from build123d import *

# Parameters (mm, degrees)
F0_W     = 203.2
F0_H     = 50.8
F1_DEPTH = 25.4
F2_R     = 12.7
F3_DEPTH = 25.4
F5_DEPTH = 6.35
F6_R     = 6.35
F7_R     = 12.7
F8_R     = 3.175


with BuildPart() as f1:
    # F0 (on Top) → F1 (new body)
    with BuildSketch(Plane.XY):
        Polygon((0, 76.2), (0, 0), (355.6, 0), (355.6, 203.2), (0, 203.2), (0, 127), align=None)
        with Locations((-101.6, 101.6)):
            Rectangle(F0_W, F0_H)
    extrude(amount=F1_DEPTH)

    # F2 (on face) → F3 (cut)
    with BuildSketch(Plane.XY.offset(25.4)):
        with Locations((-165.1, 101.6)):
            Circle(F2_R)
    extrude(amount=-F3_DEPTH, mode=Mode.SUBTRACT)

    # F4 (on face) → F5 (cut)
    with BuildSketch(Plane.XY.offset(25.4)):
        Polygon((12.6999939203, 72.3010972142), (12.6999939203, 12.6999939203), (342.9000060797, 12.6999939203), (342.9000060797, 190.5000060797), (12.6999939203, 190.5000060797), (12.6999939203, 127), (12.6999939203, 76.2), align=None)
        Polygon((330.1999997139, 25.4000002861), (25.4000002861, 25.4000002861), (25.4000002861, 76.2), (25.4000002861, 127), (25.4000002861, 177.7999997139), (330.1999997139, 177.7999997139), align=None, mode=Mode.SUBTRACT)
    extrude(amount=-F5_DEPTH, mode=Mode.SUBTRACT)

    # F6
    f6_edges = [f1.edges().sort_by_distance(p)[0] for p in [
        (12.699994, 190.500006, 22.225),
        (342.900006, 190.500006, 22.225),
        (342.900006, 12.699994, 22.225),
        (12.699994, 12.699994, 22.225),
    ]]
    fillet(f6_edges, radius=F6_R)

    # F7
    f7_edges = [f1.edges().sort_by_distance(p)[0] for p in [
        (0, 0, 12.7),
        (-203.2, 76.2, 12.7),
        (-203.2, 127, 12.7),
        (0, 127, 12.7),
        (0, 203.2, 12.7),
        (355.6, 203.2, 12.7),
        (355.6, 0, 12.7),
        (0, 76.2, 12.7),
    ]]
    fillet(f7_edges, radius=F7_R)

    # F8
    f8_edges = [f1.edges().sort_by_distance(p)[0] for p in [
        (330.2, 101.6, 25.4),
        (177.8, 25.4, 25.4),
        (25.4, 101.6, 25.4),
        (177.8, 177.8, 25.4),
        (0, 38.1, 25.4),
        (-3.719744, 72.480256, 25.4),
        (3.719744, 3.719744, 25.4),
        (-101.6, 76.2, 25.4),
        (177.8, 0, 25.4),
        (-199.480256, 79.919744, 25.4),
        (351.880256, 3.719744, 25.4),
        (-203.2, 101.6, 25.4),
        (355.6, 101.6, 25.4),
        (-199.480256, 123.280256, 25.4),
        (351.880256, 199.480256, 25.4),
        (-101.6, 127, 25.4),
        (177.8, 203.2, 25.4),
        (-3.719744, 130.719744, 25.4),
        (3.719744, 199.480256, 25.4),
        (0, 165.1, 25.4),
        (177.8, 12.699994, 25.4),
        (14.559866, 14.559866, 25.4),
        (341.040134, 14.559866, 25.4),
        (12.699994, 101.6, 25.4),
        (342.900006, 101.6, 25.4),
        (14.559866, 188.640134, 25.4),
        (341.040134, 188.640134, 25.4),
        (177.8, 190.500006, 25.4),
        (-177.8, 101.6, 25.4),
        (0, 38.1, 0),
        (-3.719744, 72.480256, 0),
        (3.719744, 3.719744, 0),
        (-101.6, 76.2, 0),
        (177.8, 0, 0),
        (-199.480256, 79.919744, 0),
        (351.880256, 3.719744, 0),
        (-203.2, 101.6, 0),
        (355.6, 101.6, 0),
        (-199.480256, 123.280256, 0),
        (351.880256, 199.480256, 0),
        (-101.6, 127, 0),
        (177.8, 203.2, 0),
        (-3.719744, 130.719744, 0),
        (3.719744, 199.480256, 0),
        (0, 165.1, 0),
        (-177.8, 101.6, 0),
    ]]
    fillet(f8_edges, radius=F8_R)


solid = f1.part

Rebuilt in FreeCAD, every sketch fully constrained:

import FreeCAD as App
import Part
import Sketcher

V = App.Vector
Q = App.Units.Quantity


def edges_at(feature, points):
    """Names of the edges that pass closest to the given points."""
    edges = feature.Shape.Edges
    near = lambda p: min(range(len(edges)), key=lambda i: edges[i].distToShape(Part.Vertex(*p))[0])
    return sorted({f"Edge{near(p) + 1}" for p in points})

doc = App.newDocument("Part")
body = doc.addObject("PartDesign::Body", "Body")

# Sketch on XY plane
sketch1 = body.newObject("Sketcher::SketchObject", "Sketch")
sketch1.AttachmentSupport = (doc.getObject("XY_Plane"), [""])
sketch1.MapMode = "FlatFace"
sketch1.addGeometry([
    Part.LineSegment(V(0, 0, 0), V(355.6, 0, 0)),  # 0
    Part.LineSegment(V(355.6, 0, 0), V(355.6, 203.2, 0)),  # 1
    Part.LineSegment(V(355.6, 203.2, 0), V(0, 203.2, 0)),  # 2
    Part.LineSegment(V(0, 203.2, 0), V(0, 127, 0)),  # 3
    Part.LineSegment(V(0, 127, 0), V(-203.2, 127, 0)),  # 4
    Part.LineSegment(V(-203.2, 127, 0), V(-203.2, 76.2, 0)),  # 5
    Part.LineSegment(V(-203.2, 76.2, 0), V(0, 76.2, 0)),  # 6
    Part.LineSegment(V(0, 76.2, 0), V(0, 0, 0)),  # 7
], False)
sketch1.addConstraint([
    Sketcher.Constraint("Coincident", 0, 2, 1, 1),
    Sketcher.Constraint("Coincident", 1, 2, 2, 1),
    Sketcher.Constraint("Coincident", 2, 2, 3, 1),
    Sketcher.Constraint("Coincident", 3, 2, 4, 1),
    Sketcher.Constraint("Coincident", 4, 2, 5, 1),
    Sketcher.Constraint("Coincident", 5, 2, 6, 1),
    Sketcher.Constraint("Coincident", 6, 2, 7, 1),
    Sketcher.Constraint("Coincident", 7, 2, 0, 1),
    Sketcher.Constraint("Horizontal", 0),
    Sketcher.Constraint("Vertical", 1),
    Sketcher.Constraint("Horizontal", 2),
    Sketcher.Constraint("Vertical", 3),
    Sketcher.Constraint("Horizontal", 4),
    Sketcher.Constraint("Vertical", 5),
    Sketcher.Constraint("Horizontal", 6),
    Sketcher.Constraint("Vertical", 7),
    Sketcher.Constraint("Coincident", 7, 2, -1, 1),
    Sketcher.Constraint("PointOnObject", 2, 2, -2),
    Sketcher.Constraint("Equal", 6, 1),
    Sketcher.Constraint("Equal", 3, 7),
    Sketcher.Constraint("DistanceX", 0, 1, 0, 2, Q("14 in")),
    Sketcher.Constraint("DistanceX", 4, 2, 4, 1, Q("8 in")),
    Sketcher.Constraint("DistanceY", 3, 2, 3, 1, Q("3 in")),
])
pad1 = body.newObject("PartDesign::Pad", "Pad")
pad1.Profile = sketch1
pad1.Length = Q("1 in")

# Sketch on XY plane
sketch2 = body.newObject("Sketcher::SketchObject", "Sketch001")
sketch2.AttachmentSupport = (doc.getObject("XY_Plane"), [""])
sketch2.MapMode = "FlatFace"
sketch2.AttachmentOffset = App.Placement(V(0, 0, 1 * 25.4), App.Rotation())
sketch2.addGeometry(Part.Circle(V(-165.1, 101.6, 0), V(0, 0, 1), 12.7), False)
sketch2.addConstraint([
    Sketcher.Constraint("Diameter", 0, Q("1 in")),
    Sketcher.Constraint("DistanceY", -1, 1, 0, 3, Q("4 in")),
    Sketcher.Constraint("DistanceX", 0, 3, -1, 1, Q("6.5 in")),
])
pocket1 = body.newObject("PartDesign::Pocket", "Pocket")
pocket1.Profile = sketch2
pocket1.Length = Q("1 in")

# Sketch on XY plane
sketch3 = body.newObject("Sketcher::SketchObject", "Sketch002")
sketch3.AttachmentSupport = (doc.getObject("XY_Plane"), [""])
sketch3.MapMode = "FlatFace"
sketch3.AttachmentOffset = App.Placement(V(0, 0, 1 * 25.4), App.Rotation())
sketch3.addGeometry([
    Part.LineSegment(V(12.699994, 12.699994, 0), V(342.900006, 12.699994, 0)),  # 0
    Part.LineSegment(V(342.900006, 12.699994, 0), V(342.900006, 190.500006, 0)),  # 1
    Part.LineSegment(V(342.900006, 190.500006, 0), V(12.699994, 190.500006, 0)),  # 2
    Part.LineSegment(V(12.699994, 190.500006, 0), V(12.699994, 12.699994, 0)),  # 3
    Part.LineSegment(V(330.2, 177.8, 0), V(330.2, 25.4, 0)),  # 4
    Part.LineSegment(V(330.2, 25.4, 0), V(25.4, 25.4, 0)),  # 5
    Part.LineSegment(V(25.4, 25.4, 0), V(25.4, 177.8, 0)),  # 6
    Part.LineSegment(V(25.4, 177.8, 0), V(330.2, 177.8, 0)),  # 7
], False)
sketch3.addConstraint([
    Sketcher.Constraint("Coincident", 0, 2, 1, 1),
    Sketcher.Constraint("Coincident", 1, 2, 2, 1),
    Sketcher.Constraint("Coincident", 2, 2, 3, 1),
    Sketcher.Constraint("Coincident", 3, 2, 0, 1),
    Sketcher.Constraint("Coincident", 4, 2, 5, 1),
    Sketcher.Constraint("Coincident", 5, 2, 6, 1),
    Sketcher.Constraint("Coincident", 6, 2, 7, 1),
    Sketcher.Constraint("Coincident", 7, 2, 4, 1),
    Sketcher.Constraint("Horizontal", 0),
    Sketcher.Constraint("Vertical", 1),
    Sketcher.Constraint("Horizontal", 2),
    Sketcher.Constraint("Vertical", 3),
    Sketcher.Constraint("Vertical", 4),
    Sketcher.Constraint("Horizontal", 5),
    Sketcher.Constraint("Vertical", 6),
    Sketcher.Constraint("Horizontal", 7),
    Sketcher.Constraint("DistanceX", 5, 2, 5, 1, Q("12 in")),
    Sketcher.Constraint("DistanceY", 4, 2, 4, 1, Q("6 in")),
    Sketcher.Constraint("DistanceX", -1, 1, 4, 2, Q("13 in")),
    Sketcher.Constraint("DistanceY", -1, 1, 4, 2, Q("1 in")),
    Sketcher.Constraint("DistanceX", 0, 1, 0, 2, Q("330.200012 mm")),
    Sketcher.Constraint("DistanceY", 1, 1, 1, 2, Q("177.800012 mm")),
    Sketcher.Constraint("DistanceX", -1, 1, 0, 2, Q("342.900006 mm")),
    Sketcher.Constraint("DistanceY", -1, 1, 0, 2, Q("12.699994 mm")),
])
pocket2 = body.newObject("PartDesign::Pocket", "Pocket001")
pocket2.Profile = sketch3
pocket2.Length = Q("0.25 in")
doc.recompute()

fillet = body.newObject("PartDesign::Fillet", "Fillet")
fillet.Base = (pocket2, edges_at(pocket2, [
    (12.7, 190.5, 22.225),
    (342.9, 190.5, 22.225),
    (342.9, 12.7, 22.225),
    (12.7, 12.7, 22.225),
]))
fillet.Radius = Q("0.25 in")
doc.recompute()

fillet2 = body.newObject("PartDesign::Fillet", "Fillet001")
fillet2.Base = (fillet, edges_at(fillet, [
    (0, 0, 12.7),
    (-203.2, 76.2, 12.7),
    (-203.2, 127, 12.7),
    (0, 127, 12.7),
    (0, 203.2, 12.7),
    (355.6, 203.2, 12.7),
    (355.6, 0, 12.7),
    (0, 76.2, 12.7),
]))
fillet2.Radius = Q("0.5 in")
doc.recompute()

fillet3 = body.newObject("PartDesign::Fillet", "Fillet002")
fillet3.Base = (fillet2, edges_at(fillet2, [
    (330.2, 101.6, 25.4),
    (177.8, 25.4, 25.4),
    (25.4, 101.6, 25.4),
    (177.8, 177.8, 25.4),
    (0, 38.1, 25.4),
    (-3.72, 72.48, 25.4),
    (3.72, 3.72, 25.4),
    (-101.6, 76.2, 25.4),
    (177.8, 0, 25.4),
    (-199.48, 79.92, 25.4),
    (351.88, 3.72, 25.4),
    (-203.2, 101.6, 25.4),
    (355.6, 101.6, 25.4),
    (-199.48, 123.28, 25.4),
    (351.88, 199.48, 25.4),
    (-101.6, 127, 25.4),
    (177.8, 203.2, 25.4),
    (-3.72, 130.72, 25.4),
    (3.72, 199.48, 25.4),
    (0, 165.1, 25.4),
    (177.8, 12.7, 25.4),
    (14.56, 14.56, 25.4),
    (341.04, 14.56, 25.4),
    (12.7, 101.6, 25.4),
    (342.9, 101.6, 25.4),
    (14.56, 188.64, 25.4),
    (341.04, 188.64, 25.4),
    (177.8, 190.5, 25.4),
    (-177.8, 101.6, 25.4),
    (0, 38.1, 0),
    (-3.72, 72.48, 0),
    (3.72, 3.72, 0),
    (-101.6, 76.2, 0),
    (177.8, 0, 0),
    (-199.48, 79.92, 0),
    (351.88, 3.72, 0),
    (-203.2, 101.6, 0),
    (355.6, 101.6, 0),
    (-199.48, 123.28, 0),
    (351.88, 199.48, 0),
    (-101.6, 127, 0),
    (177.8, 203.2, 0),
    (-3.72, 130.72, 0),
    (3.72, 199.48, 0),
    (0, 165.1, 0),
    (-177.8, 101.6, 0),
]))
fillet3.Radius = Q("0.125 in")

doc.recompute()
